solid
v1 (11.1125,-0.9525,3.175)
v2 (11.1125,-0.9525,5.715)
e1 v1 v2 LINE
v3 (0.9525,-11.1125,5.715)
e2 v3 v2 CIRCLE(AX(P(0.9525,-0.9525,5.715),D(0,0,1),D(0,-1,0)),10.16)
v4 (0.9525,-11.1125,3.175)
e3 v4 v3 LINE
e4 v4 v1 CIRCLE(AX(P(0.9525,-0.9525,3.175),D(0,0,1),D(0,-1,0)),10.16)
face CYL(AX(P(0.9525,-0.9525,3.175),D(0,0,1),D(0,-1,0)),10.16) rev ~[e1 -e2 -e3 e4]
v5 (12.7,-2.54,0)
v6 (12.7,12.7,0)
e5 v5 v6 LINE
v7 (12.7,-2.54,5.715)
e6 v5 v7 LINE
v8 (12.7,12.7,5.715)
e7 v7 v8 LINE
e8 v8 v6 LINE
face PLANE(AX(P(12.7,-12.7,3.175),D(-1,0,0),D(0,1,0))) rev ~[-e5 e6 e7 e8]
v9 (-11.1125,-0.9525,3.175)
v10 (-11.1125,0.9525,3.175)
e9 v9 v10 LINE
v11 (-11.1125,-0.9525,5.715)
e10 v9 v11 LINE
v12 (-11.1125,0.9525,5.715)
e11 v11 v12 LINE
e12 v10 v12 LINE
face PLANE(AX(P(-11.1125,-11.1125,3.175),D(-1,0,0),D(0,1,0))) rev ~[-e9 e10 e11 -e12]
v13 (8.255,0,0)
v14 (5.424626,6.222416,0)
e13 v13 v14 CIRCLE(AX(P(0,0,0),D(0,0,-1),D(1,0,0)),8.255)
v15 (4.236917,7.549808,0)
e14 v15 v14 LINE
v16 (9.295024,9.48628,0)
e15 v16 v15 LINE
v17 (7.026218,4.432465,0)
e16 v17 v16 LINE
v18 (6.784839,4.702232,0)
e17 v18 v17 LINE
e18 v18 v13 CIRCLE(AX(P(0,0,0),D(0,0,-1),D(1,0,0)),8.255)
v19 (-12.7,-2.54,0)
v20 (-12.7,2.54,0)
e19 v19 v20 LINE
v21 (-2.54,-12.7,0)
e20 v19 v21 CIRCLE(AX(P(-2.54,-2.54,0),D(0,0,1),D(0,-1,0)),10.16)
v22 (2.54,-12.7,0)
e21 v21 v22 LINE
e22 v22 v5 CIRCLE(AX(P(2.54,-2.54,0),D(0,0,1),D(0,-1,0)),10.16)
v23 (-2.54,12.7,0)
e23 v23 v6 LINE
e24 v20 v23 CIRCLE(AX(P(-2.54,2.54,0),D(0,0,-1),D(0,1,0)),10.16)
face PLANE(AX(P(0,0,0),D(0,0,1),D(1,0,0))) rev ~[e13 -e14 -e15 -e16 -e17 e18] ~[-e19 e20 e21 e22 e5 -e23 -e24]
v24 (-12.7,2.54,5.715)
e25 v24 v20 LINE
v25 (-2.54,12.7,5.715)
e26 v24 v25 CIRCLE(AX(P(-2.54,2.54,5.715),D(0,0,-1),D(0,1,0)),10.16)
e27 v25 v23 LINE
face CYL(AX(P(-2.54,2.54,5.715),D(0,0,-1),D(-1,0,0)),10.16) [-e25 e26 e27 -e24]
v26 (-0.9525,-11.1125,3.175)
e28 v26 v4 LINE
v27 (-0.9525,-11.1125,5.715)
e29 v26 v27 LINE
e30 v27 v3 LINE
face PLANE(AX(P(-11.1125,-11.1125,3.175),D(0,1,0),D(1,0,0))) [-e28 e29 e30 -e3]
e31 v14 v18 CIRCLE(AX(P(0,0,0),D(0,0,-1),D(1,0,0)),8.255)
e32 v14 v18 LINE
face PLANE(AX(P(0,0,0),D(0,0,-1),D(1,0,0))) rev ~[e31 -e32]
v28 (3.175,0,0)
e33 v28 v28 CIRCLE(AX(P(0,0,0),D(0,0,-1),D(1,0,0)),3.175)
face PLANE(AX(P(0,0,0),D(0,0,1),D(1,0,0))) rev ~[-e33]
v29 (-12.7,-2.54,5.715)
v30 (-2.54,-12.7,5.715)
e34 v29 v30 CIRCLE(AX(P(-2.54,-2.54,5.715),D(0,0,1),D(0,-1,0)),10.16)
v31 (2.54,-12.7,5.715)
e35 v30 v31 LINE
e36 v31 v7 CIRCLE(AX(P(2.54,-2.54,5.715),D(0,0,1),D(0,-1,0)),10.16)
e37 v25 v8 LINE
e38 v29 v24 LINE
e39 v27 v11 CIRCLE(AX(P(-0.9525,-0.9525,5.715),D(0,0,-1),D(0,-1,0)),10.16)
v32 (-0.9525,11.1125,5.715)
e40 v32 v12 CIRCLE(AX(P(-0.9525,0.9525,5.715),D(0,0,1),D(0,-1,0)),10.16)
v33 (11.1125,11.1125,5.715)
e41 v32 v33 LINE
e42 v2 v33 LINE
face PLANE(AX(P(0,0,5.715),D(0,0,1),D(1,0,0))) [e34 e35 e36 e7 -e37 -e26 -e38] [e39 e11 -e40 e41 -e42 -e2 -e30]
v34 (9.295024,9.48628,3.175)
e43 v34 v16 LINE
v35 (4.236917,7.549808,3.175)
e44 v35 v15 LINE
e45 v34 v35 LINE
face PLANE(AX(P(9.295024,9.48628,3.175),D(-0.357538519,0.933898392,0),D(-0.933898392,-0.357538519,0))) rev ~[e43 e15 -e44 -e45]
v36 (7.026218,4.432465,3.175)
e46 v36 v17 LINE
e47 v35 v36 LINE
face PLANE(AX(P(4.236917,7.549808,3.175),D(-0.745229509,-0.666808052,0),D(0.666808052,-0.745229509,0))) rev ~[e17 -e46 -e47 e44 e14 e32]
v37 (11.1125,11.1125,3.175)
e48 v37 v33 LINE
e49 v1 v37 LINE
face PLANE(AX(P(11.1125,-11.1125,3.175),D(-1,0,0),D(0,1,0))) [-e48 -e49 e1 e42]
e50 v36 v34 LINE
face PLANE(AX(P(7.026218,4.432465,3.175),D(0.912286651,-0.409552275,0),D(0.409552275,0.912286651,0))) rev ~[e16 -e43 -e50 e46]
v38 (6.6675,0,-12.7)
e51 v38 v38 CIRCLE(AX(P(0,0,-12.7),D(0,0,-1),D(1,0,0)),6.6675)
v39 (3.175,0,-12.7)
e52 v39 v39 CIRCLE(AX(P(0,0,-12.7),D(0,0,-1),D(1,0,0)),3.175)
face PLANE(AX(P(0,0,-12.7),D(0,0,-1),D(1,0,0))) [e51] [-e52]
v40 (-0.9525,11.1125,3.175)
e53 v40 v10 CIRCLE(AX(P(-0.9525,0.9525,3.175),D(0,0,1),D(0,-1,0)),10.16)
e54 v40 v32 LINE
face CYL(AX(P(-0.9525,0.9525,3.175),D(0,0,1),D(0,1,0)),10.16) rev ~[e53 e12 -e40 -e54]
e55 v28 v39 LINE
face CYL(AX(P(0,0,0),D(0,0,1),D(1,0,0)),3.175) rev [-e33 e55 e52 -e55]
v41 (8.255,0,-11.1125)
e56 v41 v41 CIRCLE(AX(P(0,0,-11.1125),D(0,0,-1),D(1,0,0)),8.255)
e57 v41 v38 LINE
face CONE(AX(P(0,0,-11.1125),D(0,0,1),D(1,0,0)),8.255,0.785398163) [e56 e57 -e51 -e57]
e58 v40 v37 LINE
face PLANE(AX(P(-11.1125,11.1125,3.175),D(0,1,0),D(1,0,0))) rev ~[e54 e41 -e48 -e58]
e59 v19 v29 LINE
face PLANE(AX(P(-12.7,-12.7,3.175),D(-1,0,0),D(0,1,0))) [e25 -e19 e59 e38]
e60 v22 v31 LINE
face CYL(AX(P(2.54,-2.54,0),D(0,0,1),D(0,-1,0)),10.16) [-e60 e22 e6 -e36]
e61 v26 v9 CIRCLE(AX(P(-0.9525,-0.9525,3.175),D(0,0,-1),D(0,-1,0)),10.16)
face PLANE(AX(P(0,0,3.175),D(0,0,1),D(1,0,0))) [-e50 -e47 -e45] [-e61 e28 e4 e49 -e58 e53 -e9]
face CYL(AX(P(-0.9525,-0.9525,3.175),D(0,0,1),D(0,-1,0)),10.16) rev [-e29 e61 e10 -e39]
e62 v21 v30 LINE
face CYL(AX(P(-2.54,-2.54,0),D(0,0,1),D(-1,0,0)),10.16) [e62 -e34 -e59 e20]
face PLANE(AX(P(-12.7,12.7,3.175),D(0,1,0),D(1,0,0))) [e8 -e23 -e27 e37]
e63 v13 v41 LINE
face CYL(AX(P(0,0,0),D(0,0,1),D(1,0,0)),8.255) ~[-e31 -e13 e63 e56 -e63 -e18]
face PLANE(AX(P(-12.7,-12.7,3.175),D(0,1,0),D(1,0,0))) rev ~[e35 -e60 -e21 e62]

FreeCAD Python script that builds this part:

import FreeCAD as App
import Part
import Sketcher
Q = App.Units.Quantity


def edges_at(feature, points):
    """Names of the edges that pass closest to the given points."""
    edges = feature.Shape.Edges
    near = lambda p: min(range(len(edges)), key=lambda i: edges[i].distToShape(Part.Vertex(*p))[0])
    return sorted({f"Edge{near(p) + 1}" for p in points})

doc = App.newDocument("Part")
body = doc.addObject("PartDesign::Body", "Body")

sketch1 = doc.addObject("Sketcher::SketchObject", "Sketch")
body.addObject(sketch1)
sketch1.AttachmentSupport = (doc.XY_Plane, [""])
sketch1.MapMode = "FlatFace"
sketch1.addGeometry([
    Part.LineSegment(App.Vector(-12.7, 12.7, 0), App.Vector(-12.7, -12.7, 0)),
    Part.LineSegment(App.Vector(-12.7, -12.7, 0), App.Vector(12.7, -12.7, 0)),
    Part.LineSegment(App.Vector(12.7, -12.7, 0), App.Vector(12.7, 12.7, 0)),
    Part.LineSegment(App.Vector(12.7, 12.7, 0), App.Vector(-12.7, 12.7, 0)),
], False)
sketch1.addConstraint([
    Sketcher.Constraint("Coincident", 0, 2, 1, 1),
    Sketcher.Constraint("Coincident", 1, 2, 2, 1),
    Sketcher.Constraint("Coincident", 2, 2, 3, 1),
    Sketcher.Constraint("Coincident", 3, 2, 0, 1),
    Sketcher.Constraint("Vertical", 0),
    Sketcher.Constraint("Horizontal", 1),
    Sketcher.Constraint("Vertical", 2),
    Sketcher.Constraint("Horizontal", 3),
    Sketcher.Constraint("Symmetric", 0, 2, 2, 2, -1, 1),
    Sketcher.Constraint("Equal", 3, 0),
    Sketcher.Constraint("DistanceX", 1, 1, 1, 2, Q("1 in")),
])
pad1 = doc.addObject("PartDesign::Pad", "Pad")
body.addObject(pad1)
pad1.Profile = sketch1
pad1.Length = Q("0.125 in")

sketch2 = doc.addObject("Sketcher::SketchObject", "Sketch001")
body.addObject(sketch2)
sketch2.AttachmentSupport = (doc.XY_Plane, [""])
sketch2.MapMode = "FlatFace"
sketch2.AttachmentOffset = App.Placement(App.Vector(0, 0, 0.125 * 25.4), App.Rotation())
sketch2.addGeometry([
    Part.LineSegment(App.Vector(-12.7, 12.7, 0), App.Vector(-12.7, -12.7, 0)),
    Part.LineSegment(App.Vector(-12.7, -12.7, 0), App.Vector(12.7, -12.7, 0)),
    Part.LineSegment(App.Vector(12.7, -12.7, 0), App.Vector(12.7, 12.7, 0)),
    Part.LineSegment(App.Vector(12.7, 12.7, 0), App.Vector(-12.7, 12.7, 0)),
    Part.LineSegment(App.Vector(11.1125, -11.1125, 0), App.Vector(-11.1125, -11.1125, 0)),
    Part.LineSegment(App.Vector(-11.1125, -11.1125, 0), App.Vector(-11.1125, 11.1125, 0)),
    Part.LineSegment(App.Vector(-11.1125, 11.1125, 0), App.Vector(11.1125, 11.1125, 0)),
    Part.LineSegment(App.Vector(11.1125, 11.1125, 0), App.Vector(11.1125, -11.1125, 0)),
], False)
sketch2.addConstraint([
    Sketcher.Constraint("Coincident", 0, 2, 1, 1),
    Sketcher.Constraint("Coincident", 1, 2, 2, 1),
    Sketcher.Constraint("Coincident", 2, 2, 3, 1),
    Sketcher.Constraint("Coincident", 3, 2, 0, 1),
    Sketcher.Constraint("Coincident", 4, 2, 5, 1),
    Sketcher.Constraint("Coincident", 5, 2, 6, 1),
    Sketcher.Constraint("Coincident", 6, 2, 7, 1),
    Sketcher.Constraint("Coincident", 7, 2, 4, 1),
    Sketcher.Constraint("Vertical", 0),
    Sketcher.Constraint("Horizontal", 1),
    Sketcher.Constraint("Vertical", 2),
    Sketcher.Constraint("Horizontal", 3),
    Sketcher.Constraint("Horizontal", 4),
    Sketcher.Constraint("Vertical", 5),
    Sketcher.Constraint("Horizontal", 6),
    Sketcher.Constraint("Vertical", 7),
    Sketcher.Constraint("Symmetric", 0, 2, 2, 2, -1, 1),
    Sketcher.Constraint("Symmetric", 4, 2, 6, 2, -1, 1),
    Sketcher.Constraint("Equal", 3, 0),
    Sketcher.Constraint("Equal", 6, 5),
    Sketcher.Constraint("DistanceX", 1, 1, 1, 2, Q("1 in")),
    Sketcher.Constraint("DistanceX", 4, 2, 4, 1, Q("0.875 in")),
])
pad2 = doc.addObject("PartDesign::Pad", "Pad001")
body.addObject(pad2)
pad2.Profile = sketch2
pad2.Length = Q("0.1 in")

sketch3 = doc.addObject("Sketcher::SketchObject", "Sketch002")
body.addObject(sketch3)
sketch3.AttachmentSupport = (doc.XY_Plane, [""])
sketch3.MapMode = "FlatFace"
sketch3.AttachmentOffset = App.Placement(App.Vector(0, 0, 0.125 * 25.4), App.Rotation())
sketch3.addGeometry([
    Part.LineSegment(App.Vector(7.026218, 4.432465, 0), App.Vector(9.295024, 9.48628, 0)),
    Part.LineSegment(App.Vector(9.295024, 9.48628, 0), App.Vector(4.236917, 7.549808, 0)),
    Part.LineSegment(App.Vector(4.236917, 7.549808, 0), App.Vector(7.026218, 4.432465, 0)),
], False)
sketch3.addConstraint([
    Sketcher.Constraint("Coincident", 0, 2, 1, 1),
    Sketcher.Constraint("Coincident", 1, 2, 2, 1),
    Sketcher.Constraint("Coincident", 2, 2, 0, 1),
    Sketcher.Constraint("DistanceX", 1, 2, 2, 2, 2.789301),
    Sketcher.Constraint("Distance", 1, 5.416121),
    Sketcher.Constraint("DistanceY", -1, 1, 0, 2, 9.48628),
    Sketcher.Constraint("Distance", 0, 5.539723),
    Sketcher.Constraint("Distance", 2, 4.183064),
    Sketcher.Constraint("DistanceX", -1, 1, 0, 2, 9.295024),
])
pocket1 = doc.addObject("PartDesign::Pocket", "Pocket")
body.addObject(pocket1)
pocket1.Profile = sketch3
pocket1.Length = Q("1 in")

sketch4 = doc.addObject("Sketcher::SketchObject", "Sketch003")
body.addObject(sketch4)
sketch4.AttachmentSupport = (doc.XY_Plane, [""])
sketch4.MapMode = "FlatFace"
sketch4.addGeometry([
    Part.Circle(App.Vector(0, 0, 0), App.Vector(0, 0, 1), 8.255),
    Part.Circle(App.Vector(0, 0, 0), App.Vector(0, 0, 1), 3.175),
], False)
sketch4.addConstraint([
    Sketcher.Constraint("Coincident", 0, 3, -1, 1),
    Sketcher.Constraint("Coincident", 1, 3, -1, 1),
    Sketcher.Constraint("Diameter", 0, Q("0.65 in")),
    Sketcher.Constraint("Diameter", 1, Q("0.25 in")),
])
pad3 = doc.addObject("PartDesign::Pad", "Pad002")
body.addObject(pad3)
pad3.Profile = sketch4
pad3.Length = Q("0.5 in")
pad3.Reversed = True
doc.recompute()

fillet = doc.addObject("PartDesign::Fillet", "Fillet")
body.addObject(fillet)
fillet.Base = (pad3, edges_at(pad3, [
    (12.7, -12.7, 2.857),
    (-12.7, -12.7, 2.857),
    (-11.113, -11.113, 4.445),
    (11.113, -11.113, 4.445),
    (-11.113, 11.113, 4.445),
    (-12.7, 12.7, 2.857),
]))
fillet.Radius = Q("0.4 in")
doc.recompute()

chamfer = doc.addObject("PartDesign::Chamfer", "Chamfer")
body.addObject(chamfer)
chamfer.Base = (fillet, edges_at(fillet, [(-8.255, 0, -12.7)]))
chamfer.Size = Q("0.0625 in")

doc.recompute()
